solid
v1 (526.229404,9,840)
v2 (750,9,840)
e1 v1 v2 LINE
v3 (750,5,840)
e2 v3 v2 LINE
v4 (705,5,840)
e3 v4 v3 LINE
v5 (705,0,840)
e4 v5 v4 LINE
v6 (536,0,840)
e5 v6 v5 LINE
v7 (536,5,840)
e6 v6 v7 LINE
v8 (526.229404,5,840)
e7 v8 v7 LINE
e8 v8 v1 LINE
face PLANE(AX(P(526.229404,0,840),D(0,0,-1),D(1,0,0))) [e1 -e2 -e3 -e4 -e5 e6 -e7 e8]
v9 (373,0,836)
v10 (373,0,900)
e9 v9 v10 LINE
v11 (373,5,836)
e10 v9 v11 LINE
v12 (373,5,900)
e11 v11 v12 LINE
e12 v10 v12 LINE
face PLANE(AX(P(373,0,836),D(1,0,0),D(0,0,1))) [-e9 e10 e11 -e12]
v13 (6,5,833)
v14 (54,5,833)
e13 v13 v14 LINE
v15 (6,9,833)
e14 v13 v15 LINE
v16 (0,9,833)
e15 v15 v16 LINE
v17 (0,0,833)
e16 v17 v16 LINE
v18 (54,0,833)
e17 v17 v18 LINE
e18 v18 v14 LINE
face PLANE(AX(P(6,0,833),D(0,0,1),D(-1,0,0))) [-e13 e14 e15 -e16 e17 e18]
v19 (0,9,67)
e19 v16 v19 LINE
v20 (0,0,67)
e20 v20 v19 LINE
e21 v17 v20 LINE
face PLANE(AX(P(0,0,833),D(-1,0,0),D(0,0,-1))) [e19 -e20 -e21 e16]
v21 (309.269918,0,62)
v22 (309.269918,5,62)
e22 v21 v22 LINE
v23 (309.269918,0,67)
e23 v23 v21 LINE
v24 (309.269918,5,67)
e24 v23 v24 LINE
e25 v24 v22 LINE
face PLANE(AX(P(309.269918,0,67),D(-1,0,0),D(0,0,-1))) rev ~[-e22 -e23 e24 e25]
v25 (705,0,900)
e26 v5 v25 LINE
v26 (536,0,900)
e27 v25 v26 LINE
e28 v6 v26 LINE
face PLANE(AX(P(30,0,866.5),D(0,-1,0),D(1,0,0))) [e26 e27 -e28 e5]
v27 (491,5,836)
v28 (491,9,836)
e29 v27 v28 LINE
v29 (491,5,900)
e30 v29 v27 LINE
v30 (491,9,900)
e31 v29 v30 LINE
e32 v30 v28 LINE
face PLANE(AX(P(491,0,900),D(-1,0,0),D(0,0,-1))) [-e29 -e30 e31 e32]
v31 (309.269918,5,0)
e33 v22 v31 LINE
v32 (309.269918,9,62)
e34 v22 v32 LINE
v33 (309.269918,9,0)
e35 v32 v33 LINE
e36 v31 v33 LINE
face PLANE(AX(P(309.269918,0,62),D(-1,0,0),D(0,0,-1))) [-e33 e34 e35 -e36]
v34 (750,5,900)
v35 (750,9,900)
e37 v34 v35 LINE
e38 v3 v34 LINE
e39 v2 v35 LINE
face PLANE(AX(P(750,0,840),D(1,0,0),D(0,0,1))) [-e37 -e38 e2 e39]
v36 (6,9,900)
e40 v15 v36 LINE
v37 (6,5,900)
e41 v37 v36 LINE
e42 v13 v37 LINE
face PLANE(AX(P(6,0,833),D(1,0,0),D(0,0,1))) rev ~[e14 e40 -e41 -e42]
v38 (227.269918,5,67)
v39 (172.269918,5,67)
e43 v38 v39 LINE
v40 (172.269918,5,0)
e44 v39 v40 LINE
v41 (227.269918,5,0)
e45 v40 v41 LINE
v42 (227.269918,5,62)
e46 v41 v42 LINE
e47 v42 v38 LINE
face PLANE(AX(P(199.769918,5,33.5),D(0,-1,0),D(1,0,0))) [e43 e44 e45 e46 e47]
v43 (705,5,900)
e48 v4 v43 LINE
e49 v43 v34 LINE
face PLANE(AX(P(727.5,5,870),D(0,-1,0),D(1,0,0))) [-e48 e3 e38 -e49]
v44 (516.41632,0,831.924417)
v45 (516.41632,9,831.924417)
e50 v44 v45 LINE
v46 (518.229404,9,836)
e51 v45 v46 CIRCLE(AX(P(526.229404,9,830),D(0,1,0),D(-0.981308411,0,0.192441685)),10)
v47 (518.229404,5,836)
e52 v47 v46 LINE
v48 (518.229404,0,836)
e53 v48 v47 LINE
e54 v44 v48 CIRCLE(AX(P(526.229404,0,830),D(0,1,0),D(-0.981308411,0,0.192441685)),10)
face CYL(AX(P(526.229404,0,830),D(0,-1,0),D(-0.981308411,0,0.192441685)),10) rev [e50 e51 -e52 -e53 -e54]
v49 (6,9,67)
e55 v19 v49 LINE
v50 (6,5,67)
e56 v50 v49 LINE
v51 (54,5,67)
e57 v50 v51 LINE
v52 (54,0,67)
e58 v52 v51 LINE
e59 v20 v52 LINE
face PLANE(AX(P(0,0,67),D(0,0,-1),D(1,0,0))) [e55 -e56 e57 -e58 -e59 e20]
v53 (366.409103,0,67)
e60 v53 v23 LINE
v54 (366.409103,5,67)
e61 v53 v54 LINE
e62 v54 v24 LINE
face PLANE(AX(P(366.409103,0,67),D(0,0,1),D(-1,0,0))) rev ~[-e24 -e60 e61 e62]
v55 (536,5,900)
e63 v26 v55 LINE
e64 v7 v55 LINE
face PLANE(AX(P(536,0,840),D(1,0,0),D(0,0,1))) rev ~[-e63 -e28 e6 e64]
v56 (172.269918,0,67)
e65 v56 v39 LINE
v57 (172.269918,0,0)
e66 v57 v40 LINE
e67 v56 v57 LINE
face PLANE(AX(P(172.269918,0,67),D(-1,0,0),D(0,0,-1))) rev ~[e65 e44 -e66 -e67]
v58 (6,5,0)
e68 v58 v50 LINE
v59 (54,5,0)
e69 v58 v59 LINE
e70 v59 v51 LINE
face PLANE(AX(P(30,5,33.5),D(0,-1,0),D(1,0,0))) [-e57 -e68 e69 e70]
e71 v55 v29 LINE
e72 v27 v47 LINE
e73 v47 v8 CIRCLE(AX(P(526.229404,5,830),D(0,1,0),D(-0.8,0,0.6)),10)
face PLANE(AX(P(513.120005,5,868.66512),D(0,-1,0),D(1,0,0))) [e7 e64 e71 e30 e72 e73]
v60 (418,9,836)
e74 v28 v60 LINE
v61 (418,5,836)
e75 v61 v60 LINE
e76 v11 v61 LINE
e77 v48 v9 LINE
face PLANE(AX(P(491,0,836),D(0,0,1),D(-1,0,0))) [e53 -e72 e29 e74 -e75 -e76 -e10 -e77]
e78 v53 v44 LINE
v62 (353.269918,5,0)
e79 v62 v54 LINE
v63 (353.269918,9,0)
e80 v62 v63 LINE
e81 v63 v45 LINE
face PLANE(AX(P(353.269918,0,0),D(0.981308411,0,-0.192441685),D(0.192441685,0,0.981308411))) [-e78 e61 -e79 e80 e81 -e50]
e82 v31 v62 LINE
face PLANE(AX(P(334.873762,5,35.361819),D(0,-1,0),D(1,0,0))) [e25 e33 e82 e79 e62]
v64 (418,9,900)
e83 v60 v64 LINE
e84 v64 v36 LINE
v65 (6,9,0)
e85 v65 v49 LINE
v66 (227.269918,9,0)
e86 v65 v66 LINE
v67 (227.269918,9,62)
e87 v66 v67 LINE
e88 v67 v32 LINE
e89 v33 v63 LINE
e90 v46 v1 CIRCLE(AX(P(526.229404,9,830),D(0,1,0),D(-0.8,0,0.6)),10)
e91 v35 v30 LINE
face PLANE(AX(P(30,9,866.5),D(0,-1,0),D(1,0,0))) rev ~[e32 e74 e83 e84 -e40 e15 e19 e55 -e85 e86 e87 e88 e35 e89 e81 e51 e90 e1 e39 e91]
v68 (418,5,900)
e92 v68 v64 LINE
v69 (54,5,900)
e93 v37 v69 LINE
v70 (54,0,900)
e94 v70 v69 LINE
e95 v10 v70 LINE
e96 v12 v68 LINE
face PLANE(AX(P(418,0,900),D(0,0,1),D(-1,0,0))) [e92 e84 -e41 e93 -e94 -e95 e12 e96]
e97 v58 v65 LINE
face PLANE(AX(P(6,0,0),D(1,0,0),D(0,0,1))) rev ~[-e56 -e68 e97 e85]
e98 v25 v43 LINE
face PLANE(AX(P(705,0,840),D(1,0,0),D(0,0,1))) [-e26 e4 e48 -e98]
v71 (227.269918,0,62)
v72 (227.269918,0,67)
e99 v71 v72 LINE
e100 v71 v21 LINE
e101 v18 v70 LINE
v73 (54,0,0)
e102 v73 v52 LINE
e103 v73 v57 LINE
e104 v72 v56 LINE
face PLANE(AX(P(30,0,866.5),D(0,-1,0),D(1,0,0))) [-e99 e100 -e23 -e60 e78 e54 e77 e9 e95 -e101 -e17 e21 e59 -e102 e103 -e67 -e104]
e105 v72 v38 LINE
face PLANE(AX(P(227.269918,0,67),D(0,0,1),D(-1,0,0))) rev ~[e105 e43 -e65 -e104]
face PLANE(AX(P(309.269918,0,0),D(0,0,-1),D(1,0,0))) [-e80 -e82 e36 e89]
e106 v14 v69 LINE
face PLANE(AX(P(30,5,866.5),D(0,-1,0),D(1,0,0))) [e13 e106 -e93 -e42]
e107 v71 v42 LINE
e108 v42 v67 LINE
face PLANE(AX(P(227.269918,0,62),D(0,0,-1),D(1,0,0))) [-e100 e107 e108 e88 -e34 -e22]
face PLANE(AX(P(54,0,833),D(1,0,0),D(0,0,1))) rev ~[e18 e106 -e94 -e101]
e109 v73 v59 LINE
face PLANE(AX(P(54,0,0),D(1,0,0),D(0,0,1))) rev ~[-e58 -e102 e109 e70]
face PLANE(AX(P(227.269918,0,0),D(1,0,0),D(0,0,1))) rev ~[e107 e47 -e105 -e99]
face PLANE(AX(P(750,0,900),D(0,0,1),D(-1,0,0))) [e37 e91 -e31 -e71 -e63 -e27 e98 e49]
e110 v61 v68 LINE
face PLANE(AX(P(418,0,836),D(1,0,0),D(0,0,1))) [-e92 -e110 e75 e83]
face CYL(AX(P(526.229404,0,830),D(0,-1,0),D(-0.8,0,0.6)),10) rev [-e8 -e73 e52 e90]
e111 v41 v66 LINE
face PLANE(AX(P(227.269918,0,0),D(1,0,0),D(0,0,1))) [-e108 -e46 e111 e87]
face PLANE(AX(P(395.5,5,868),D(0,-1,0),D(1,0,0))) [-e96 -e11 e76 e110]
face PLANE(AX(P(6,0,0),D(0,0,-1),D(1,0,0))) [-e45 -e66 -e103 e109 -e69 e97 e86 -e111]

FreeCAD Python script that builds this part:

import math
import FreeCAD as App
import Part
import Sketcher

V = App.Vector
Q = App.Units.Quantity


def add_polygon(sketch, points):
    """Adds a closed chain of lines whose ends are joined by coincident constraints."""
    first, n = sketch.GeometryCount, len(points)
    for a, b in zip(points, points[1:] + points[:1]):
        sketch.addGeometry(Part.LineSegment(App.Vector(*a, 0), App.Vector(*b, 0)), False)
    for i in range(n):
        sketch.addConstraint(Sketcher.Constraint("Coincident", first + i, 2, first + (i + 1) % n, 1))

doc = App.newDocument("Part")
body = doc.addObject("PartDesign::Body", "Body")

sketch1 = doc.addObject("Sketcher::SketchObject", "Sketch")
body.addObject(sketch1)
sketch1.AttachmentSupport = (doc.XZ_Plane, [""])
sketch1.MapMode = "FlatFace"
sketch1.addGeometry([
    Part.LineSegment(V(6, 900, 0), V(6, 833, 0)),
    Part.LineSegment(V(6, 833, 0), V(0, 833, 0)),
    Part.LineSegment(V(0, 833, 0), V(0, 67, 0)),
    Part.LineSegment(V(0, 67, 0), V(6, 67, 0)),
    Part.LineSegment(V(6, 67, 0), V(6, 0, 0)),
    Part.LineSegment(V(6, 0, 0), V(227.3, 0, 0)),
    Part.LineSegment(V(227.3, 0, 0), V(227.3, 62, 0)),
    Part.LineSegment(V(227.3, 62, 0), V(309.3, 62, 0)),
    Part.LineSegment(V(309.3, 62, 0), V(309.3, 0, 0)),
    Part.LineSegment(V(309.3, 0, 0), V(353.3, 0, 0)),
    Part.LineSegment(V(353.3, 0, 0), V(516.4, 831.9, 0)),
    Part.ArcOfCircle(Part.Circle(V(526.2, 830, 0), V(0, 0, 1), 10), math.radians(143), math.radians(169)),
    Part.ArcOfCircle(Part.Circle(V(526.2, 830, 0), V(0, 0, 1), 10), math.radians(90), math.radians(143)),
    Part.LineSegment(V(526.2, 840, 0), V(750, 840, 0)),
    Part.LineSegment(V(750, 840, 0), V(750, 900, 0)),
    Part.LineSegment(V(750, 900, 0), V(491, 900, 0)),
    Part.LineSegment(V(491, 900, 0), V(491, 836, 0)),
    Part.LineSegment(V(491, 836, 0), V(418, 836, 0)),
    Part.LineSegment(V(418, 836, 0), V(418, 900, 0)),
    Part.LineSegment(V(418, 900, 0), V(6, 900, 0)),
], False)
sketch1.addConstraint([
    Sketcher.Constraint("Coincident", 0, 2, 1, 1),
    Sketcher.Constraint("Coincident", 1, 2, 2, 1),
    Sketcher.Constraint("Coincident", 2, 2, 3, 1),
    Sketcher.Constraint("Coincident", 3, 2, 4, 1),
    Sketcher.Constraint("Coincident", 4, 2, 5, 1),
    Sketcher.Constraint("Coincident", 5, 2, 6, 1),
    Sketcher.Constraint("Coincident", 6, 2, 7, 1),
    Sketcher.Constraint("Coincident", 7, 2, 8, 1),
    Sketcher.Constraint("Coincident", 8, 2, 9, 1),
    Sketcher.Constraint("Coincident", 9, 2, 10, 1),
    Sketcher.Constraint("Tangent", 10, 2, 11, 2),
    Sketcher.Constraint("Tangent", 11, 1, 12, 2),
    Sketcher.Constraint("Tangent", 12, 1, 13, 1),
    Sketcher.Constraint("Coincident", 13, 2, 14, 1),
    Sketcher.Constraint("Coincident", 14, 2, 15, 1),
    Sketcher.Constraint("Coincident", 15, 2, 16, 1),
    Sketcher.Constraint("Coincident", 16, 2, 17, 1),
    Sketcher.Constraint("Coincident", 17, 2, 18, 1),
    Sketcher.Constraint("Coincident", 18, 2, 19, 1),
    Sketcher.Constraint("Coincident", 19, 2, 0, 1),
    Sketcher.Constraint("Vertical", 0),
    Sketcher.Constraint("Horizontal", 1),
    Sketcher.Constraint("Vertical", 2),
    Sketcher.Constraint("Horizontal", 3),
    Sketcher.Constraint("Vertical", 4),
    Sketcher.Constraint("Horizontal", 5),
    Sketcher.Constraint("Vertical", 6),
    Sketcher.Constraint("Horizontal", 7),
    Sketcher.Constraint("Vertical", 8),
    Sketcher.Constraint("Horizontal", 9),
    Sketcher.Constraint("Horizontal", 13),
    Sketcher.Constraint("Vertical", 14),
    Sketcher.Constraint("Horizontal", 15),
    Sketcher.Constraint("Vertical", 16),
    Sketcher.Constraint("Horizontal", 17),
    Sketcher.Constraint("Vertical", 18),
    Sketcher.Constraint("Horizontal", 19),
    Sketcher.Constraint("Equal", 11, 12),
    Sketcher.Constraint("PointOnObject", 1, 2, -2),
    Sketcher.Constraint("PointOnObject", 4, 2, -1),
    Sketcher.Constraint("PointOnObject", 8, 2, -1),
    Sketcher.Constraint("Horizontal", 11, 1, 16, 2),
    Sketcher.Constraint("Horizontal", 15, 2, 18, 2),
    Sketcher.Constraint("Vertical", 0, 2, 3, 2),
    Sketcher.Constraint("Equal", 0, 4),
    Sketcher.Constraint("Radius", 11, Q("10 mm")),
    Sketcher.Constraint("DistanceX", 1, 2, 1, 1, Q("6 mm")),
    Sketcher.Constraint("DistanceX", 7, 1, 7, 2, Q("82 mm")),
    Sketcher.Constraint("DistanceX", 9, 1, 9, 2, Q("44 mm")),
    Sketcher.Constraint("DistanceX", 15, 2, 15, 1, Q("259 mm")),
    Sketcher.Constraint("DistanceX", 17, 2, 17, 1, Q("73 mm")),
    Sketcher.Constraint("DistanceX", 19, 2, 19, 1, Q("412 mm")),
    Sketcher.Constraint("DistanceY", 0, 2, 0, 1, Q("67 mm")),
    Sketcher.Constraint("DistanceY", 2, 2, 2, 1, Q("766 mm")),
    Sketcher.Constraint("DistanceY", 6, 1, 6, 2, Q("62 mm")),
    Sketcher.Constraint("DistanceY", 14, 1, 14, 2, Q("60 mm")),
    Sketcher.Constraint("DistanceY", 16, 2, 16, 1, Q("64 mm")),
    Sketcher.Constraint("DistanceX", 7, 2, 10, 2, Q("207.146402 mm")),
    Sketcher.Constraint("DistanceX", 5, 1, 5, 2, Q("221.269918 mm")),
])
pad1 = doc.addObject("PartDesign::Pad", "Pad")
body.addObject(pad1)
pad1.Profile = sketch1
pad1.Length = 9
pad1.Reversed = True

sketch2 = doc.addObject("Sketcher::SketchObject", "Sketch001")
body.addObject(sketch2)
sketch2.AttachmentSupport = (doc.XZ_Plane, [""])
sketch2.MapMode = "FlatFace"
add_polygon(sketch2, [(6, 900), (6, 833), (54, 833), (54, 900)])
add_polygon(sketch2, [(705, 900), (705, 840), (750, 840), (750, 900)])
add_polygon(sketch2, [(373, 900), (373, 836), (418, 836), (418, 900)])
sketch2.addGeometry(Part.LineSegment(V(536, 900, 0), V(491, 900, 0)), False)
sketch2.addGeometry(Part.LineSegment(V(491, 900, 0), V(491, 836, 0)), False)
sketch2.addGeometry(Part.LineSegment(V(491, 836, 0), V(518, 836, 0)), False)
sketch2.addGeometry(Part.ArcOfCircle(Part.Circle(V(526, 830, 0), V(0, 0, 1), 10), math.radians(90), math.radians(143)), False)
sketch2.addGeometry(Part.LineSegment(V(526, 840, 0), V(536, 840, 0)), False)
sketch2.addGeometry(Part.LineSegment(V(536, 840, 0), V(536, 900, 0)), False)
add_polygon(sketch2, [(309, 0), (353, 0), (366, 67), (309, 67)])
add_polygon(sketch2, [(172, 67), (172, 0), (227, 0), (227, 67)])
add_polygon(sketch2, [(6, 67), (6, 0), (54, 0), (54, 67)])
sketch2.addConstraint([
    Sketcher.Constraint("Coincident", 12, 2, 13, 1),
    Sketcher.Constraint("Coincident", 13, 2, 14, 1),
    Sketcher.Constraint("Coincident", 14, 2, 15, 2),
    Sketcher.Constraint("Tangent", 15, 1, 16, 1),
    Sketcher.Constraint("Coincident", 16, 2, 17, 1),
    Sketcher.Constraint("Coincident", 17, 2, 12, 1),
    Sketcher.Constraint("Vertical", 0),
    Sketcher.Constraint("Horizontal", 1),
    Sketcher.Constraint("Vertical", 2),
    Sketcher.Constraint("Horizontal", 3),
    Sketcher.Constraint("Vertical", 4),
    Sketcher.Constraint("Horizontal", 5),
    Sketcher.Constraint("Vertical", 6),
    Sketcher.Constraint("Horizontal", 7),
    Sketcher.Constraint("Vertical", 8),
    Sketcher.Constraint("Horizontal", 9),
    Sketcher.Constraint("Vertical", 10),
    Sketcher.Constraint("Horizontal", 11),
    Sketcher.Constraint("Horizontal", 12),
    Sketcher.Constraint("Vertical", 13),
    Sketcher.Constraint("Horizontal", 14),
    Sketcher.Constraint("Horizontal", 16),
    Sketcher.Constraint("Vertical", 17),
    Sketcher.Constraint("Horizontal", 18),
    Sketcher.Constraint("Horizontal", 20),
    Sketcher.Constraint("Vertical", 21),
    Sketcher.Constraint("Vertical", 22),
    Sketcher.Constraint("Horizontal", 23),
    Sketcher.Constraint("Vertical", 24),
    Sketcher.Constraint("Horizontal", 25),
    Sketcher.Constraint("Vertical", 26),
    Sketcher.Constraint("Horizontal", 27),
    Sketcher.Constraint("Vertical", 28),
    Sketcher.Constraint("Horizontal", 29),
    Sketcher.Constraint("PointOnObject", 18, 2, -1),
    Sketcher.Constraint("PointOnObject", 22, 2, -1),
    Sketcher.Constraint("PointOnObject", 26, 2, -1),
    Sketcher.Constraint("Horizontal", 3, 2, 6, 2),
    Sketcher.Constraint("Horizontal", 7, 2, 10, 2),
    Sketcher.Constraint("Horizontal", 11, 2, 12, 2),
    Sketcher.Constraint("Horizontal", 9, 2, 13, 2),
    Sketcher.Constraint("Horizontal", 5, 2, 15, 1),
    Sketcher.Constraint("Horizontal", 20, 2, 24, 2),
    Sketcher.Constraint("Horizontal", 25, 2, 28, 2),
    Sketcher.Constraint("Vertical", 3, 2, 26, 2),
    Sketcher.Constraint("Vertical", 2, 2, 27, 2),
    Sketcher.Constraint("Equal", 7, 9),
    Sketcher.Constraint("Equal", 11, 12),
    Sketcher.Constraint("Equal", 2, 21),
    Sketcher.Constraint("Radius", 15, Q("10 mm")),
    Sketcher.Constraint("DistanceX", 1, 1, 1, 2, Q("48 mm")),
    Sketcher.Constraint("DistanceX", 5, 1, 5, 2, Q("45 mm")),
    Sketcher.Constraint("DistanceX", 18, 1, 18, 2, Q("44 mm")),
    Sketcher.Constraint("DistanceX", 23, 1, 23, 2, Q("55 mm")),
    Sketcher.Constraint("DistanceY", 0, 2, 0, 1, Q("67 mm")),
    Sketcher.Constraint("DistanceY", 4, 2, 4, 1, Q("60 mm")),
    Sketcher.Constraint("DistanceY", 8, 2, 8, 1, Q("64 mm")),
    Sketcher.Constraint("DistanceY", -1, 1, 15, 3, Q("830 mm")),
    Sketcher.Constraint("DistanceX", -1, 1, 0, 2, Q("6 mm")),
    Sketcher.Constraint("DistanceX", -1, 1, 4, 2, Q("705 mm")),
    Sketcher.Constraint("DistanceX", -1, 1, 8, 2, Q("373 mm")),
    Sketcher.Constraint("DistanceX", -1, 1, 12, 2, Q("491 mm")),
    Sketcher.Constraint("DistanceX", 22, 2, 21, 2, Q("137 mm")),
    Sketcher.Constraint("DistanceX", 19, 2, 15, 3, Q("159.820301 mm")),
    Sketcher.Constraint("Distance", 19, Q("68.27619 mm")),
    Sketcher.Constraint("DistanceX", 14, 1, 14, 2, Q("27.229404 mm")),
])
pocket1 = doc.addObject("PartDesign::Pocket", "Pocket")
body.addObject(pocket1)
pocket1.Profile = sketch2
pocket1.Length = 5

doc.recompute()
